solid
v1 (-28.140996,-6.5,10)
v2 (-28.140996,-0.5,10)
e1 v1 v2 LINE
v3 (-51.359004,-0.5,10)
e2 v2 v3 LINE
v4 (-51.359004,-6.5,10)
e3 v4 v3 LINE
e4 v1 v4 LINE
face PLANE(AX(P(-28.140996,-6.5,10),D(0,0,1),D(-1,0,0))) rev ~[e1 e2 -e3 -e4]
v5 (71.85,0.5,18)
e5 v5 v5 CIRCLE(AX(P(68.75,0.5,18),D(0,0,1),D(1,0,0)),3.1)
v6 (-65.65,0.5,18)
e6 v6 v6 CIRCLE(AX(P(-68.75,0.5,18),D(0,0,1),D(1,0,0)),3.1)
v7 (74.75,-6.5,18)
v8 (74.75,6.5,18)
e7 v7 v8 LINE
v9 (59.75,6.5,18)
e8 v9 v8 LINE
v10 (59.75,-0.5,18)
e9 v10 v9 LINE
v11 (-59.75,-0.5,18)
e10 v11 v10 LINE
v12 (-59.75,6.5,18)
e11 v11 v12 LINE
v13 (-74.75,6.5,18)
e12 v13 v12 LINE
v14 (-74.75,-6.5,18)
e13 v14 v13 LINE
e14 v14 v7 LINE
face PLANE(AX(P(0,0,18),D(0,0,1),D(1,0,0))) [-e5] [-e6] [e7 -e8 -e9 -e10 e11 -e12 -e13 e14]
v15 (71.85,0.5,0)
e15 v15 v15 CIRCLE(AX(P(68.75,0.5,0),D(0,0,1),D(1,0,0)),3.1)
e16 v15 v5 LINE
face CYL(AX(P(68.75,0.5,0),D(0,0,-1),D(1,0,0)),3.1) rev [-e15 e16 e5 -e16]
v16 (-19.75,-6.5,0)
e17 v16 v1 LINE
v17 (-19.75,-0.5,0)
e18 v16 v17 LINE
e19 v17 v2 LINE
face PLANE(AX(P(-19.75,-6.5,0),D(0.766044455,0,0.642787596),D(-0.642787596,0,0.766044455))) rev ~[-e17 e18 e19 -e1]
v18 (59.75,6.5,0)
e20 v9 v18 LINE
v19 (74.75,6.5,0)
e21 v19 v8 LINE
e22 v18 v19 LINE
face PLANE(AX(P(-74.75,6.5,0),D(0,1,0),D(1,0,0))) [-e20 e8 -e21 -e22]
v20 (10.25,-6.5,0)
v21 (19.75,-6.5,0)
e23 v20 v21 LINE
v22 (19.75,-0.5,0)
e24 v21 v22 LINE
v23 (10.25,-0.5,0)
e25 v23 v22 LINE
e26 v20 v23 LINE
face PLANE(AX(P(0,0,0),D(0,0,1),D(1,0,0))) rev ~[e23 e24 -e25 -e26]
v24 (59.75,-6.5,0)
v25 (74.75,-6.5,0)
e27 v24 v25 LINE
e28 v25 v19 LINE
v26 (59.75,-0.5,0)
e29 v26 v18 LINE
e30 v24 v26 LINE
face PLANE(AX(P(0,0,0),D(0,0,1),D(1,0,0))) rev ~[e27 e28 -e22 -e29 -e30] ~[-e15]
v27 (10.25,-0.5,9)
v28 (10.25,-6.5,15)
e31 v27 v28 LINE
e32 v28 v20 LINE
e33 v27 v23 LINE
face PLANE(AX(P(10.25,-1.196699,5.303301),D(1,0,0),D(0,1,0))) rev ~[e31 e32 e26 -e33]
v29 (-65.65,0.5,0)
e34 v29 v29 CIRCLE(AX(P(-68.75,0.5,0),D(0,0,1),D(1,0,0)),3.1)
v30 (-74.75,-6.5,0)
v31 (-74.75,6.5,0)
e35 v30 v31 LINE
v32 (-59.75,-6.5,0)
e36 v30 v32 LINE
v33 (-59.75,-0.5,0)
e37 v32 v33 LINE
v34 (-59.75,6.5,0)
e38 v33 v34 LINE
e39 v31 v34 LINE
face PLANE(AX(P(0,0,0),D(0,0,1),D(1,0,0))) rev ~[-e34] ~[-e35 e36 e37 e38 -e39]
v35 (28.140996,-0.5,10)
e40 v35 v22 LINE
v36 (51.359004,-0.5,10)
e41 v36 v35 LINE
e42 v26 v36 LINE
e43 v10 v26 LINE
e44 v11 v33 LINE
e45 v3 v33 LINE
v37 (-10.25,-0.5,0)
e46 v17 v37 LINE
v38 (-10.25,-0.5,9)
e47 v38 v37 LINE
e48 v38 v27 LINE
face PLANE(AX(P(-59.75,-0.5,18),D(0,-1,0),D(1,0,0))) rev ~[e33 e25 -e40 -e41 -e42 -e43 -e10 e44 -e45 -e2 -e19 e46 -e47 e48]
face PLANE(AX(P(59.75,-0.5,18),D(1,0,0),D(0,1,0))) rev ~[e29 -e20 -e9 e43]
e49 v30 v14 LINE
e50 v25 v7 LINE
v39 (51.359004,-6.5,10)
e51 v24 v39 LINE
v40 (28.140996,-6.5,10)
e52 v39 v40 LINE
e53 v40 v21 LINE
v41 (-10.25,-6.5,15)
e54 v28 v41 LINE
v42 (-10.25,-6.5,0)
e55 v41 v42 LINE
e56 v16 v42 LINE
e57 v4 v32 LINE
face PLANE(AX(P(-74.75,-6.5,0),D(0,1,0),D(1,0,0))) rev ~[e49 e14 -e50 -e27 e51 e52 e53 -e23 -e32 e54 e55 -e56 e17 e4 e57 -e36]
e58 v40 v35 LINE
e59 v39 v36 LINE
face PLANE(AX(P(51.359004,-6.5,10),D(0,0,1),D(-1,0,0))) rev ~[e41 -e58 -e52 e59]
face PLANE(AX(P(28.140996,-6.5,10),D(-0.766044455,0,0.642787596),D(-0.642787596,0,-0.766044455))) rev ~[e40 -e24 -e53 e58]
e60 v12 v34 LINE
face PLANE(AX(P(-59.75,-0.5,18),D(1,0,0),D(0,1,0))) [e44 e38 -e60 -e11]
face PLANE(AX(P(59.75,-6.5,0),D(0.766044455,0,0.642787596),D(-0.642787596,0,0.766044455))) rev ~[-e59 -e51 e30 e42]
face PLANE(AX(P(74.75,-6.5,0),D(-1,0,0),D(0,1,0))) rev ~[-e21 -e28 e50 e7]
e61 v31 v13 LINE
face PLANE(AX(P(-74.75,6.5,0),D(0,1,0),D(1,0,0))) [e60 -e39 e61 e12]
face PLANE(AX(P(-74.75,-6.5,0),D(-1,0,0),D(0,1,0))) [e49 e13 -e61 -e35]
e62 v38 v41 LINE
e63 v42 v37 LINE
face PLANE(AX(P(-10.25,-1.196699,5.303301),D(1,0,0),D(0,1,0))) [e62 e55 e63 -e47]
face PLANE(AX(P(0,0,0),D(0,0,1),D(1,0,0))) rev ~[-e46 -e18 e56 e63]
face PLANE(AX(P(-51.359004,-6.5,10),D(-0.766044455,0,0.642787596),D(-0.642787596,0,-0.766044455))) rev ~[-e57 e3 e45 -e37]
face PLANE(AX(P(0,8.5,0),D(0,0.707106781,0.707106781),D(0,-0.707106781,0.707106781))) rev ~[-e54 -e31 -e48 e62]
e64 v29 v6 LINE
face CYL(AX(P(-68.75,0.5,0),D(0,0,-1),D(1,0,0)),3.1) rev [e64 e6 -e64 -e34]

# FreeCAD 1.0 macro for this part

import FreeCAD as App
import Part
import Sketcher
Q = App.Units.Quantity


def add_polygon(sketch, points):
    """Adds a closed chain of lines whose ends are joined by coincident constraints."""
    first, n = sketch.GeometryCount, len(points)
    for a, b in zip(points, points[1:] + points[:1]):
        sketch.addGeometry(Part.LineSegment(App.Vector(*a, 0), App.Vector(*b, 0)), False)
    for i in range(n):
        sketch.addConstraint(Sketcher.Constraint("Coincident", first + i, 2, first + (i + 1) % n, 1))

doc = App.newDocument("Part")
body = doc.addObject("PartDesign::Body", "Body")

# Sketch on XY plane
sketch1 = doc.addObject("Sketcher::SketchObject", "Sketch")
body.addObject(sketch1)
sketch1.AttachmentSupport = (doc.XY_Plane, [""])
sketch1.MapMode = "FlatFace"
add_polygon(sketch1, [(-74.8, 6.5), (-74.8, -6.5), (74.8, -6.5), (74.8, 6.5)])  # lines 0-3
sketch1.addGeometry(Part.Circle(App.Vector(-68.8, 0.5, 0), App.Vector(0, 0, 1), 3.1), False)  # 4
sketch1.addGeometry(Part.Circle(App.Vector(68.8, 0.5, 0), App.Vector(0, 0, 1), 3.1), False)  # 5
sketch1.addConstraint([
    Sketcher.Constraint("Vertical", 0),
    Sketcher.Constraint("Horizontal", 1),
    Sketcher.Constraint("Vertical", 2),
    Sketcher.Constraint("Horizontal", 3),
    Sketcher.Constraint("Equal", 4, 5),
    Sketcher.Constraint("Symmetric", 0, 2, 2, 2, -1, 1),
    Sketcher.Constraint("Symmetric", 4, 3, 5, 3, -2),
    Sketcher.Constraint("Diameter", 4, 6.2),
    Sketcher.Constraint("DistanceY", 0, 2, 0, 1, 13.0),
    Sketcher.Constraint("DistanceX", 1, 1, 1, 2, 149.5),
    Sketcher.Constraint("DistanceX", 0, 2, 4, 3, 6.0),
    Sketcher.Constraint("DistanceY", 0, 2, 4, 3, 7.0),
])
pad1 = doc.addObject("PartDesign::Pad", "Pad")
body.addObject(pad1)
pad1.Profile = sketch1
pad1.Length = 18

# Sketch on YZ plane
sketch2 = doc.addObject("Sketcher::SketchObject", "Sketch001")
body.addObject(sketch2)
sketch2.AttachmentSupport = (doc.YZ_Plane, [""])
sketch2.MapMode = "FlatFace"
add_polygon(sketch2, [(-6, 0), (8, 0), (-6, 15)])  # lines 0-2
sketch2.addConstraint([
    Sketcher.Constraint("Horizontal", 0),
    Sketcher.Constraint("Vertical", 2),
    Sketcher.Constraint("PointOnObject", 0, 2, -1),
    Sketcher.Constraint("Equal", 0, 2),
    Sketcher.Constraint("DistanceX", 0, 1, 0, 2, 15.0),
    Sketcher.Constraint("DistanceX", -1, 1, 0, 2, 8.5),
])
pocket1 = doc.addObject("PartDesign::Pocket", "Pocket")
body.addObject(pocket1)
pocket1.Profile = sketch2
pocket1.Length = 20.5
pocket1.Midplane = True

# Sketch on XY plane
sketch3 = doc.addObject("Sketcher::SketchObject", "Sketch002")
body.addObject(sketch3)
sketch3.AttachmentSupport = (doc.XY_Plane, [""])
sketch3.MapMode = "FlatFace"
sketch3.AttachmentOffset = App.Placement(App.Vector(0, 0, 18), App.Rotation())
add_polygon(sketch3, [(-60, 6), (-60, 0), (60, 0), (60, 6)])  # lines 0-3
sketch3.addConstraint([
    Sketcher.Constraint("Vertical", 0),
    Sketcher.Constraint("Horizontal", 1),
    Sketcher.Constraint("Vertical", 2),
    Sketcher.Constraint("Horizontal", 3),
    Sketcher.Constraint("DistanceY", 0, 2, 0, 1, 7.0),
    Sketcher.Constraint("DistanceX", 1, 1, 1, 2, 119.5),
    Sketcher.Constraint("DistanceY", 0, 2, -1, 1, 0.5),
    Sketcher.Constraint("DistanceX", 0, 2, -1, 1, 59.75),
])
pocket2 = doc.addObject("PartDesign::Pocket", "Pocket001")
body.addObject(pocket2)
pocket2.Profile = sketch3
pocket2.Type = "ThroughAll"

# Sketch on XZ plane
sketch4 = doc.addObject("Sketcher::SketchObject", "Sketch003")
body.addObject(sketch4)
sketch4.AttachmentSupport = (doc.XZ_Plane, [""])
sketch4.MapMode = "FlatFace"
sketch4.AttachmentOffset = App.Placement(App.Vector(0, 0, 6.5), App.Rotation())
add_polygon(sketch4, [(-51, 10), (-60, 0), (-20, 0), (-28, 10)])  # lines 0-3
add_polygon(sketch4, [(28, 10), (20, 0), (60, 0), (51, 10)])  # lines 4-7
sketch4.addConstraint([
    Sketcher.Constraint("Horizontal", 1),
    Sketcher.Constraint("Horizontal", 3),
    Sketcher.Constraint("Horizontal", 5),
    Sketcher.Constraint("Horizontal", 7),
    Sketcher.Constraint("Symmetric", 1, 2, 4, 2, -1, 1),
    Sketcher.Constraint("Symmetric", 0, 2, 5, 2, -2),
    Sketcher.Constraint("Symmetric", 3, 2, 6, 2, -2),
    Sketcher.Constraint("Parallel", 0, 4),
    Sketcher.Constraint("Parallel", 2, 6),
    Sketcher.Constraint("DistanceX", 1, 1, 1, 2, 40.0),
    Sketcher.Constraint("Angle", 0, Q("-129.999999 deg")),
    Sketcher.Constraint("DistanceY", -1, 1, 2, 2, 10.0),
    Sketcher.Constraint("DistanceX", 1, 2, 4, 2, 39.5),
])
pocket3 = doc.addObject("PartDesign::Pocket", "Pocket002")
body.addObject(pocket3)
pocket3.Profile = sketch4
pocket3.Length = 25

doc.recompute()
